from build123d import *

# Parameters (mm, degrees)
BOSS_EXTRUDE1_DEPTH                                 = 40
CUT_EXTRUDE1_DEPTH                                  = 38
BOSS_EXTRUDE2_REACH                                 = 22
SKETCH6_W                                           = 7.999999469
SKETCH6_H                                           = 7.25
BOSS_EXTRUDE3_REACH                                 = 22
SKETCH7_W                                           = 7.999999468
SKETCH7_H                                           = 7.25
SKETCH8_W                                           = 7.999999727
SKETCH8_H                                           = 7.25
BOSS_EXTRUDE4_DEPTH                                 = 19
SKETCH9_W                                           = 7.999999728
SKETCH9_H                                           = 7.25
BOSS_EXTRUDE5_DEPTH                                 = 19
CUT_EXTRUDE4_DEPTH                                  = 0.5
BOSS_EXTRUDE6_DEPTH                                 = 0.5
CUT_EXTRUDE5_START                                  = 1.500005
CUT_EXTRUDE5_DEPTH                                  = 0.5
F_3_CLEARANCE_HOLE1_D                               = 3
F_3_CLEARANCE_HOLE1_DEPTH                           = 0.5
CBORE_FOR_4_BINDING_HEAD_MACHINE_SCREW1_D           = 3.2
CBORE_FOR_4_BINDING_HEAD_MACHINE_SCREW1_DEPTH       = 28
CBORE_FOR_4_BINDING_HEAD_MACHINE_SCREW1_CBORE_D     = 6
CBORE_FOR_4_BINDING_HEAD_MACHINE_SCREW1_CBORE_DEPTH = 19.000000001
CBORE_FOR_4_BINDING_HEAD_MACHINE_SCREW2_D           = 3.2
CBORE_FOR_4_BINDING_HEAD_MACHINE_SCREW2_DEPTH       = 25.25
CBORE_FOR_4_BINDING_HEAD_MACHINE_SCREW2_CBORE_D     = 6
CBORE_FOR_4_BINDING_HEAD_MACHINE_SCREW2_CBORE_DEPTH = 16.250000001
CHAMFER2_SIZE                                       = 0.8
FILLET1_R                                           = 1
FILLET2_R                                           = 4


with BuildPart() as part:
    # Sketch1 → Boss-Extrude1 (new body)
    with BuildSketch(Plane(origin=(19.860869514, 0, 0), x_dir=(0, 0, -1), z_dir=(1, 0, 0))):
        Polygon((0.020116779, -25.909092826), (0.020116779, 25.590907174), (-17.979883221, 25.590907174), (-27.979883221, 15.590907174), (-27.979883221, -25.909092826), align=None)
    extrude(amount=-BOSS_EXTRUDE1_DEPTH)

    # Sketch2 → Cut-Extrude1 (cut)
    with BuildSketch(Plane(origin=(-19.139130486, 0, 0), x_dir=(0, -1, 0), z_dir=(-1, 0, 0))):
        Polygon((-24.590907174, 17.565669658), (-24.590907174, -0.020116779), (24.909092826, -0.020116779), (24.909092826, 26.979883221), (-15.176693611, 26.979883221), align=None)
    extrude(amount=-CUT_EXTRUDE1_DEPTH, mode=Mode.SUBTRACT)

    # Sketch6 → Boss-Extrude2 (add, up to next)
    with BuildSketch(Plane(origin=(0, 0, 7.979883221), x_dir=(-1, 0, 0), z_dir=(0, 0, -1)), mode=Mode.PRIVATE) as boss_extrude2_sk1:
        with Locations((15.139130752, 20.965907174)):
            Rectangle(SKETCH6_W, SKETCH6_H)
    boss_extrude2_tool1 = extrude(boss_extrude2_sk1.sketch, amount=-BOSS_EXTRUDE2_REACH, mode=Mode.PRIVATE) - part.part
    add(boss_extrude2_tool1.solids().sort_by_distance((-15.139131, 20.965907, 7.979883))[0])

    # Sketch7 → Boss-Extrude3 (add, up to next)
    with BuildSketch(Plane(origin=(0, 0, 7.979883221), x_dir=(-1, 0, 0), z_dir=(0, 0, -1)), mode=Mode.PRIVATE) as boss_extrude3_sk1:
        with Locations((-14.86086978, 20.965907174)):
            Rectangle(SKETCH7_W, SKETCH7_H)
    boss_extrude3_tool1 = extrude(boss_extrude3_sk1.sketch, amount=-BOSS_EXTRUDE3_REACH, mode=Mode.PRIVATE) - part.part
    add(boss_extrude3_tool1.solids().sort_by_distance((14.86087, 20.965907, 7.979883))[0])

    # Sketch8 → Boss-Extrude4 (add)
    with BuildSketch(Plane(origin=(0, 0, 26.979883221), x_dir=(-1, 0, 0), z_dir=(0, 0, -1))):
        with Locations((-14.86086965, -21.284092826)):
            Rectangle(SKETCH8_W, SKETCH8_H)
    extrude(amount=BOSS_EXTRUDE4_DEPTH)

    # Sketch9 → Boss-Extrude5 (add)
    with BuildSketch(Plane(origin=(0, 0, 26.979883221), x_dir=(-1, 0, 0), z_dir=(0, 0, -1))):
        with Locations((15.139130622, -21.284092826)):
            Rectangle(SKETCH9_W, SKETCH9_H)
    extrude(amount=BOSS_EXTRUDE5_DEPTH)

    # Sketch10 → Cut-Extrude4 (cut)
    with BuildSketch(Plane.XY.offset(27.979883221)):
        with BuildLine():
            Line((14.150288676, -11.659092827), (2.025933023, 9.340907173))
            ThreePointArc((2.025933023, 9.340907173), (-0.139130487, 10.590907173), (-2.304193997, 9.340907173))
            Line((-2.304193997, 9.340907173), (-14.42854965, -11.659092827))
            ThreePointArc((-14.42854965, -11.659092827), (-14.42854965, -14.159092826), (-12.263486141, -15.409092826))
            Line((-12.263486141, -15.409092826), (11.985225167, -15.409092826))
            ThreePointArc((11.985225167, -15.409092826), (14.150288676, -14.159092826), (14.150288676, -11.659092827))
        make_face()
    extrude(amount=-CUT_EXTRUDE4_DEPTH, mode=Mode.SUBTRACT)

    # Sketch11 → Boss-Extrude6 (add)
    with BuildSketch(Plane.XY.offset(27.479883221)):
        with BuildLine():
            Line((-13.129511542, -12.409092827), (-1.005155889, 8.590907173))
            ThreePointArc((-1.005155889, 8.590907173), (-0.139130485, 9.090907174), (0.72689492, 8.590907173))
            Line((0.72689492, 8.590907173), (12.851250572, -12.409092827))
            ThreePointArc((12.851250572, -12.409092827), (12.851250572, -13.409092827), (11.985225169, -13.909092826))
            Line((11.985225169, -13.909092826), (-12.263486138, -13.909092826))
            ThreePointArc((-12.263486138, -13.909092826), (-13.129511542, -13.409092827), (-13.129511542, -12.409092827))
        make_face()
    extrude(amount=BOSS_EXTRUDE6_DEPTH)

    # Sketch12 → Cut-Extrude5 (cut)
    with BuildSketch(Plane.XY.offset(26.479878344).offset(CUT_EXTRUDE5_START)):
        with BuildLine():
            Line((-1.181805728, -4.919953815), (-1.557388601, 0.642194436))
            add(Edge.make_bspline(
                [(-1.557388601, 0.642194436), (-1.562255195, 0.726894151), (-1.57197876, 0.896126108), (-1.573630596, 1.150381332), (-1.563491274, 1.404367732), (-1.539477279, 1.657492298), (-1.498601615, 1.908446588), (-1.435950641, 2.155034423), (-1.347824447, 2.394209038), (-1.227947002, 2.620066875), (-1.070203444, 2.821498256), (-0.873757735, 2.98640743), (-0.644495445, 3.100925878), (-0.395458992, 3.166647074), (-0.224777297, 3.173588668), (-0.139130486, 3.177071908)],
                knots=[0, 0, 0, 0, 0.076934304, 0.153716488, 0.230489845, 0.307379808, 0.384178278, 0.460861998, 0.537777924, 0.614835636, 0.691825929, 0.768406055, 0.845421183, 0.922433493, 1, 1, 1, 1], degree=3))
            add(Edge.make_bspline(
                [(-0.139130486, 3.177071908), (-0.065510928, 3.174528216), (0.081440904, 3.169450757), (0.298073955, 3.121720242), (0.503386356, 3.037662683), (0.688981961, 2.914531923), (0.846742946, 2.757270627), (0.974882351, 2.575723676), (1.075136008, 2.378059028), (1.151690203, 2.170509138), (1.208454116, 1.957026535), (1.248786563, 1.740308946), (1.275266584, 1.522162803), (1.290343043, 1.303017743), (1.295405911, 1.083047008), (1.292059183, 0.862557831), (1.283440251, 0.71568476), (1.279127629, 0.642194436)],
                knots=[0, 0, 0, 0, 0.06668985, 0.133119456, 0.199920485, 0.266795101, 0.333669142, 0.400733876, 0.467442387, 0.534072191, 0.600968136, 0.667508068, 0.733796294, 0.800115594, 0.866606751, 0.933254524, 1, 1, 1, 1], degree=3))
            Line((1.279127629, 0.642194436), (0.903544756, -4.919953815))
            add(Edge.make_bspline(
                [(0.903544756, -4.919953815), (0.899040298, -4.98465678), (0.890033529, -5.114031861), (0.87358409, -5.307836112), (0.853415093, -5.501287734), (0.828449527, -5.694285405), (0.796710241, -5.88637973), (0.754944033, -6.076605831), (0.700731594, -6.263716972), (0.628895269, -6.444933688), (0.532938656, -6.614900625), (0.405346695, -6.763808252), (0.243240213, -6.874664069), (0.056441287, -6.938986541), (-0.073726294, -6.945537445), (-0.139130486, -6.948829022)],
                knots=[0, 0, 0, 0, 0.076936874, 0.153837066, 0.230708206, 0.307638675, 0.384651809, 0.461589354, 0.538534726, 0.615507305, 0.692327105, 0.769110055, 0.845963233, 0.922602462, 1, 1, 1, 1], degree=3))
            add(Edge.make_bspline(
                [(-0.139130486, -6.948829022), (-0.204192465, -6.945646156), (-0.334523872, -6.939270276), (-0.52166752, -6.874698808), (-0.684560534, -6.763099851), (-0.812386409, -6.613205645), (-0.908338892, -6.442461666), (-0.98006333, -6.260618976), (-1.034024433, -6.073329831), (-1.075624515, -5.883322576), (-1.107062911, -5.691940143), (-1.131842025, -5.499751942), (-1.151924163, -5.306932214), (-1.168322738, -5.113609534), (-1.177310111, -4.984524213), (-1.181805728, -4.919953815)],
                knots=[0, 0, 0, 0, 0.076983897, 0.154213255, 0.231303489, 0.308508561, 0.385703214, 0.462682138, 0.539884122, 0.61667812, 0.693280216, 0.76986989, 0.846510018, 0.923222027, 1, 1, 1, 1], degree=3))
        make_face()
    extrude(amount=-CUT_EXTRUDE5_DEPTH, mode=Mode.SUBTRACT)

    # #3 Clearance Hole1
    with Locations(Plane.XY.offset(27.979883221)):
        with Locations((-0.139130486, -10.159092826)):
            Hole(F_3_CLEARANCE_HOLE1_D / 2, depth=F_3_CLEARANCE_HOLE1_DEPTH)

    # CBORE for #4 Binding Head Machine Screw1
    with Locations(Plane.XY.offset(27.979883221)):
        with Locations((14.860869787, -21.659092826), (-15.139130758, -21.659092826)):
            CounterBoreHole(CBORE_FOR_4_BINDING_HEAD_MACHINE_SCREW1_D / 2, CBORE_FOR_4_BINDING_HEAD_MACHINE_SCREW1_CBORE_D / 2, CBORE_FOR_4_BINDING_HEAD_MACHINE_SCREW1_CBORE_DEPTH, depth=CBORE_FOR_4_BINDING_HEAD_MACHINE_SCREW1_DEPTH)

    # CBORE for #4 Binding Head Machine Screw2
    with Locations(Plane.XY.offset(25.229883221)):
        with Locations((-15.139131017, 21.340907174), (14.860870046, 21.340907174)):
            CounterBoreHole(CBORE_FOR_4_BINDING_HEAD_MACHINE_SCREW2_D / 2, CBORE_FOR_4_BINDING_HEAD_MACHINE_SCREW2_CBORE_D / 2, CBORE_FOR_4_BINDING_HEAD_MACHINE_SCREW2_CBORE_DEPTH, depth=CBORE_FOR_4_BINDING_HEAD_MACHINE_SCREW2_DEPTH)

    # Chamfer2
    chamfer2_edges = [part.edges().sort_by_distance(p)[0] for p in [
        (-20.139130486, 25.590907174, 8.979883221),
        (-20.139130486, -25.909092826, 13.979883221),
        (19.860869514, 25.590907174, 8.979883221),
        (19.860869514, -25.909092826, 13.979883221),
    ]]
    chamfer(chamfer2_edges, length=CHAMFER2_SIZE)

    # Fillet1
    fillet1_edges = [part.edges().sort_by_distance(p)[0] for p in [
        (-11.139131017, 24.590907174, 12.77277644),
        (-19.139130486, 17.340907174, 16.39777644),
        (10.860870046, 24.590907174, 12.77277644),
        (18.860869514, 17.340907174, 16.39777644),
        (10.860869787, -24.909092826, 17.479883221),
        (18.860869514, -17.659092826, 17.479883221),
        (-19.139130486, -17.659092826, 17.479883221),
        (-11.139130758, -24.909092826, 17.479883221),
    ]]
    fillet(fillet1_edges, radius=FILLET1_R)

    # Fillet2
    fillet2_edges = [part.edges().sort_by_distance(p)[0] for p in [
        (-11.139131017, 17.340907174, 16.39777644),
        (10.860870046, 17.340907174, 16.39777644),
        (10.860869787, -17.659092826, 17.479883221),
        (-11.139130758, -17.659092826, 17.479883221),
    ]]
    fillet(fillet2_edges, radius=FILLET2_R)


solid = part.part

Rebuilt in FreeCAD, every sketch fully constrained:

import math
import FreeCAD as App
import Part
import Sketcher
from FreeCAD import Vector
Q = App.Units.Quantity


def edges_at(feature, points):
    """Names of the edges that pass closest to the given points."""
    edges = feature.Shape.Edges
    near = lambda p: min(range(len(edges)), key=lambda i: edges[i].distToShape(Part.Vertex(*p))[0])
    return sorted({f"Edge{near(p) + 1}" for p in points})

doc = App.newDocument("Part")
params = doc.addObject("Spreadsheet::Sheet", "Params")
for row, (alias, value) in enumerate([
    ("sketch1_height", "18 mm"),
    ("sketch1_height2", "28 mm"),
    ("sketch1_width", "51.5 mm"),
    ("pad1_length", "40 mm"),
    ("sketch2_height", "27 mm"),
    ("sketch2_width", "49.5 mm"),
    ("pocket1_length", "38 mm"),
    ("sketch3_width", "7.999999 mm"),
    ("sketch3_height", "7.25 mm"),
    ("sketch4_width", "7.999999 mm"),
    ("sketch4_height", "7.25 mm"),
    ("sketch5_width", "8 mm"),
    ("sketch5_height", "7.25 mm"),
    ("pad4_length", "19 mm"),
    ("sketch6_width", "8 mm"),
    ("sketch6_height", "7.25 mm"),
    ("pad5_length", "19 mm"),
    ("sketch7_radius", "2.5 mm"),
    ("pocket2_length", "0.5 mm"),
    ("sketch8_radius", "1 mm"),
    ("pad6_length", "0.5 mm"),
    ("pocket3_length", "0.5 mm"),
    ("sketch10_diameter", "3 mm"),
    ("hole_diameter", "3 mm"),
    ("hole_depth", "0.5 mm"),
    ("sketch11_diameter", "3.2 mm"),
    ("hole2_diameter", "3.2 mm"),
    ("hole2_depth", "28 mm"),
    ("hole2_cbore_diameter", "6 mm"),
    ("hole2_cbore_depth", "19 mm"),
    ("sketch12_diameter", "3.2 mm"),
    ("hole3_diameter", "3.2 mm"),
    ("hole3_depth", "25.25 mm"),
    ("hole3_cbore_diameter", "6 mm"),
    ("hole3_cbore_depth", "16.25 mm"),
    ("chamfer_size", "0.8 mm"),
    ("fillet_radius", "1 mm"),
    ("fillet2_radius", "4 mm"),
], start=1):
    params.set(f"A{row}", alias)
    params.set(f"B{row}", "=" + value)
    params.setAlias(f"B{row}", alias)

body = doc.addObject("PartDesign::Body", "Body")

# Sketch on YZ plane
sketch1 = doc.addObject("Sketcher::SketchObject", "Sketch")
body.addObject(sketch1)
sketch1.AttachmentSupport = (doc.YZ_Plane, [""])
sketch1.MapMode = "FlatFace"
sketch1.AttachmentOffset = App.Placement(Vector(0, 0, 19.86087), App.Rotation())
sketch1.addGeometry([
    Part.LineSegment(Vector(-26, 0, 0), Vector(26, 0, 0)),  # 0
    Part.LineSegment(Vector(26, 0, 0), Vector(26, 18, 0)),  # 1
    Part.LineSegment(Vector(26, 18, 0), Vector(16, 28, 0)),  # 2
    Part.LineSegment(Vector(16, 28, 0), Vector(-26, 28, 0)),  # 3
    Part.LineSegment(Vector(-26, 28, 0), Vector(-26, 0, 0)),  # 4
], False)
sketch1.addConstraint([
    Sketcher.Constraint("Coincident", 0, 2, 1, 1),
    Sketcher.Constraint("Coincident", 1, 2, 2, 1),
    Sketcher.Constraint("Coincident", 2, 2, 3, 1),
    Sketcher.Constraint("Coincident", 3, 2, 4, 1),
    Sketcher.Constraint("Coincident", 4, 2, 0, 1),
    Sketcher.Constraint("Horizontal", 0),
    Sketcher.Constraint("Vertical", 1),
    Sketcher.Constraint("Horizontal", 3),
    Sketcher.Constraint("Vertical", 4),
    Sketcher.Constraint("DistanceY", 1, 1, 1, 2, 18.0),
    Sketcher.Constraint("DistanceY", 4, 2, 4, 1, 28.0),
    Sketcher.Constraint("Angle", 2, Q("135 deg")),
    Sketcher.Constraint("DistanceX", 0, 1, 0, 2, 51.5),
    Sketcher.Constraint("DistanceX", -1, 1, 0, 2, 25.590907),
    Sketcher.Constraint("DistanceY", 0, 2, -1, 1, 0.020117),
])
sketch1.setExpression("Constraints[9]", "Params.sketch1_height")
sketch1.setExpression("Constraints[10]", "Params.sketch1_height2")
sketch1.setExpression("Constraints[12]", "Params.sketch1_width")
pad1 = doc.addObject("PartDesign::Pad", "Pad")
body.addObject(pad1)
pad1.Profile = sketch1
pad1.setExpression("Length", "Params.pad1_length")
pad1.Reversed = True

# Sketch on YZ plane
sketch2 = doc.addObject("Sketcher::SketchObject", "Sketch001")
body.addObject(sketch2)
sketch2.AttachmentSupport = (doc.YZ_Plane, [""])
sketch2.MapMode = "FlatFace"
sketch2.AttachmentOffset = App.Placement(Vector(0, 0, -19.13913), App.Rotation())
sketch2.addGeometry([
    Part.LineSegment(Vector(25, 18, 0), Vector(25, 0, 0)),  # 0
    Part.LineSegment(Vector(25, 0, 0), Vector(-25, 0, 0)),  # 1
    Part.LineSegment(Vector(-25, 0, 0), Vector(-25, 27, 0)),  # 2
    Part.LineSegment(Vector(-25, 27, 0), Vector(15, 27, 0)),  # 3
    Part.LineSegment(Vector(15, 27, 0), Vector(25, 18, 0)),  # 4
], False)
sketch2.addConstraint([
    Sketcher.Constraint("Coincident", 0, 2, 1, 1),
    Sketcher.Constraint("Coincident", 1, 2, 2, 1),
    Sketcher.Constraint("Coincident", 2, 2, 3, 1),
    Sketcher.Constraint("Coincident", 3, 2, 4, 1),
    Sketcher.Constraint("Coincident", 4, 2, 0, 1),
    Sketcher.Constraint("Vertical", 0),
    Sketcher.Constraint("Horizontal", 1),
    Sketcher.Constraint("Vertical", 2),
    Sketcher.Constraint("Horizontal", 3),
    Sketcher.Constraint("DistanceY", 2, 1, 2, 2, 27.0),
    Sketcher.Constraint("Angle", 4, Q("-45 deg")),
    Sketcher.Constraint("DistanceX", 1, 2, 1, 1, 49.5),
    Sketcher.Constraint("Distance", 4, 13.313708),
    Sketcher.Constraint("DistanceY", -1, 1, 4, 2, 17.56567),
    Sketcher.Constraint("DistanceX", -1, 1, 0, 2, 24.590907),
])
sketch2.setExpression("Constraints[9]", "Params.sketch2_height")
sketch2.setExpression("Constraints[11]", "Params.sketch2_width")
pocket1 = doc.addObject("PartDesign::Pocket", "Pocket")
body.addObject(pocket1)
pocket1.Profile = sketch2
pocket1.setExpression("Length", "Params.pocket1_length")
pocket1.Reversed = True

# Sketch on XY plane
sketch3 = doc.addObject("Sketcher::SketchObject", "Sketch002")
body.addObject(sketch3)
sketch3.AttachmentSupport = (doc.XY_Plane, [""])
sketch3.MapMode = "FlatFace"
sketch3.AttachmentOffset = App.Placement(Vector(0, 0, 7.979883), App.Rotation())
sketch3.addGeometry([
    Part.LineSegment(Vector(-11, 25, 0), Vector(-11, 17, 0)),
    Part.LineSegment(Vector(-11, 17, 0), Vector(-19, 17, 0)),
    Part.LineSegment(Vector(-19, 17, 0), Vector(-19, 25, 0)),
    Part.LineSegment(Vector(-19, 25, 0), Vector(-11, 25, 0)),
], False)
sketch3.addConstraint([
    Sketcher.Constraint("Coincident", 0, 2, 1, 1),
    Sketcher.Constraint("Coincident", 1, 2, 2, 1),
    Sketcher.Constraint("Coincident", 2, 2, 3, 1),
    Sketcher.Constraint("Coincident", 3, 2, 0, 1),
    Sketcher.Constraint("Vertical", 0),
    Sketcher.Constraint("Horizontal", 1),
    Sketcher.Constraint("Vertical", 2),
    Sketcher.Constraint("Horizontal", 3),
    Sketcher.Constraint("DistanceX", 1, 2, 1, 1, 7.999999),
    Sketcher.Constraint("DistanceY", 0, 2, 0, 1, 7.25),
    Sketcher.Constraint("DistanceX", 0, 2, -1, 1, 11.139131),
    Sketcher.Constraint("DistanceY", -1, 1, 0, 2, 17.340907),
])
sketch3.setExpression("Constraints[8]", "Params.sketch3_width")
sketch3.setExpression("Constraints[9]", "Params.sketch3_height")
pad2 = doc.addObject("PartDesign::Pad", "Pad001")
body.addObject(pad2)
pad2.Profile = sketch3
pad2.Type = "UpToFirst"

# Sketch on XY plane
sketch4 = doc.addObject("Sketcher::SketchObject", "Sketch003")
body.addObject(sketch4)
sketch4.AttachmentSupport = (doc.XY_Plane, [""])
sketch4.MapMode = "FlatFace"
sketch4.AttachmentOffset = App.Placement(Vector(0, 0, 7.979883), App.Rotation())
sketch4.addGeometry([
    Part.LineSegment(Vector(19, 25, 0), Vector(19, 17, 0)),
    Part.LineSegment(Vector(19, 17, 0), Vector(11, 17, 0)),
    Part.LineSegment(Vector(11, 17, 0), Vector(11, 25, 0)),
    Part.LineSegment(Vector(11, 25, 0), Vector(19, 25, 0)),
], False)
sketch4.addConstraint([
    Sketcher.Constraint("Coincident", 0, 2, 1, 1),
    Sketcher.Constraint("Coincident", 1, 2, 2, 1),
    Sketcher.Constraint("Coincident", 2, 2, 3, 1),
    Sketcher.Constraint("Coincident", 3, 2, 0, 1),
    Sketcher.Constraint("Vertical", 0),
    Sketcher.Constraint("Horizontal", 1),
    Sketcher.Constraint("Vertical", 2),
    Sketcher.Constraint("Horizontal", 3),
    Sketcher.Constraint("DistanceX", 1, 2, 1, 1, 7.999999),
    Sketcher.Constraint("DistanceY", 0, 2, 0, 1, 7.25),
    Sketcher.Constraint("DistanceX", -1, 1, 0, 2, 18.86087),
    Sketcher.Constraint("DistanceY", -1, 1, 0, 2, 17.340907),
])
sketch4.setExpression("Constraints[8]", "Params.sketch4_width")
sketch4.setExpression("Constraints[9]", "Params.sketch4_height")
pad3 = doc.addObject("PartDesign::Pad", "Pad002")
body.addObject(pad3)
pad3.Profile = sketch4
pad3.Type = "UpToFirst"

# Sketch on XY plane
sketch5 = doc.addObject("Sketcher::SketchObject", "Sketch004")
body.addObject(sketch5)
sketch5.AttachmentSupport = (doc.XY_Plane, [""])
sketch5.MapMode = "FlatFace"
sketch5.AttachmentOffset = App.Placement(Vector(0, 0, 26.979883), App.Rotation())
sketch5.addGeometry([
    Part.LineSegment(Vector(19, -18, 0), Vector(19, -25, 0)),
    Part.LineSegment(Vector(19, -25, 0), Vector(11, -25, 0)),
    Part.LineSegment(Vector(11, -25, 0), Vector(11, -18, 0)),
    Part.LineSegment(Vector(11, -18, 0), Vector(19, -18, 0)),
], False)
sketch5.addConstraint([
    Sketcher.Constraint("Coincident", 0, 2, 1, 1),
    Sketcher.Constraint("Coincident", 1, 2, 2, 1),
    Sketcher.Constraint("Coincident", 2, 2, 3, 1),
    Sketcher.Constraint("Coincident", 3, 2, 0, 1),
    Sketcher.Constraint("Vertical", 0),
    Sketcher.Constraint("Horizontal", 1),
    Sketcher.Constraint("Vertical", 2),
    Sketcher.Constraint("Horizontal", 3),
    Sketcher.Constraint("DistanceX", 1, 2, 1, 1, 8.0),
    Sketcher.Constraint("DistanceY", 0, 2, 0, 1, 7.25),
    Sketcher.Constraint("DistanceX", -1, 1, 0, 2, 18.86087),
    Sketcher.Constraint("DistanceY", 0, 2, -1, 1, 24.909093),
])
sketch5.setExpression("Constraints[8]", "Params.sketch5_width")
sketch5.setExpression("Constraints[9]", "Params.sketch5_height")
pad4 = doc.addObject("PartDesign::Pad", "Pad003")
body.addObject(pad4)
pad4.Profile = sketch5
pad4.setExpression("Length", "Params.pad4_length")
pad4.Reversed = True

# Sketch on XY plane
sketch6 = doc.addObject("Sketcher::SketchObject", "Sketch005")
body.addObject(sketch6)
sketch6.AttachmentSupport = (doc.XY_Plane, [""])
sketch6.MapMode = "FlatFace"
sketch6.AttachmentOffset = App.Placement(Vector(0, 0, 26.979883), App.Rotation())
sketch6.addGeometry([
    Part.LineSegment(Vector(-11, -18, 0), Vector(-11, -25, 0)),
    Part.LineSegment(Vector(-11, -25, 0), Vector(-19, -25, 0)),
    Part.LineSegment(Vector(-19, -25, 0), Vector(-19, -18, 0)),
    Part.LineSegment(Vector(-19, -18, 0), Vector(-11, -18, 0)),
], False)
sketch6.addConstraint([
    Sketcher.Constraint("Coincident", 0, 2, 1, 1),
    Sketcher.Constraint("Coincident", 1, 2, 2, 1),
    Sketcher.Constraint("Coincident", 2, 2, 3, 1),
    Sketcher.Constraint("Coincident", 3, 2, 0, 1),
    Sketcher.Constraint("Vertical", 0),
    Sketcher.Constraint("Horizontal", 1),
    Sketcher.Constraint("Vertical", 2),
    Sketcher.Constraint("Horizontal", 3),
    Sketcher.Constraint("DistanceX", 1, 2, 1, 1, 8.0),
    Sketcher.Constraint("DistanceY", 0, 2, 0, 1, 7.25),
    Sketcher.Constraint("DistanceX", 0, 2, -1, 1, 11.139131),
    Sketcher.Constraint("DistanceY", 0, 2, -1, 1, 24.909093),
])
sketch6.setExpression("Constraints[8]", "Params.sketch6_width")
sketch6.setExpression("Constraints[9]", "Params.sketch6_height")
pad5 = doc.addObject("PartDesign::Pad", "Pad004")
body.addObject(pad5)
pad5.Profile = sketch6
pad5.setExpression("Length", "Params.pad5_length")
pad5.Reversed = True

# Sketch on XY plane
sketch7 = doc.addObject("Sketcher::SketchObject", "Sketch006")
body.addObject(sketch7)
sketch7.AttachmentSupport = (doc.XY_Plane, [""])
sketch7.MapMode = "FlatFace"
sketch7.AttachmentOffset = App.Placement(Vector(0, 0, 27.979883), App.Rotation())
sketch7.addGeometry([
    Part.LineSegment(Vector(14.2, -11.7, 0), Vector(2, 9.3, 0)),  # 0
    Part.ArcOfCircle(Part.Circle(Vector(-0.1, 8.1, 0), Vector(0, 0, 1), 2.5), math.radians(30), math.radians(150)),  # 1
    Part.LineSegment(Vector(-2.3, 9.3, 0), Vector(-14.4, -11.7, 0)),  # 2
    Part.ArcOfCircle(Part.Circle(Vector(-12.3, -12.9, 0), Vector(0, 0, 1), 2.5), math.radians(150), math.radians(270)),  # 3
    Part.LineSegment(Vector(-12.3, -15.4, 0), Vector(12, -15.4, 0)),  # 4
    Part.ArcOfCircle(Part.Circle(Vector(12, -12.9, 0), Vector(0, 0, 1), 2.5), math.radians(-90), math.radians(30)),  # 5
], False)
sketch7.addConstraint([
    Sketcher.Constraint("Tangent", 0, 2, 1, 1),
    Sketcher.Constraint("Tangent", 1, 2, 2, 1),
    Sketcher.Constraint("Tangent", 2, 2, 3, 1),
    Sketcher.Constraint("Tangent", 3, 2, 4, 1),
    Sketcher.Constraint("Tangent", 4, 2, 5, 1),
    Sketcher.Constraint("Tangent", 5, 2, 0, 1),
    Sketcher.Constraint("Horizontal", 4),
    Sketcher.Constraint("Equal", 1, 3),
    Sketcher.Constraint("Equal", 3, 5),
    Sketcher.Constraint("Horizontal", 0, 2, 1, 2),
    Sketcher.Constraint("Radius", 1, 2.5),
    Sketcher.Constraint("Angle", 0, Q("120 deg")),
    Sketcher.Constraint("DistanceY", 3, 3, 1, 3, 21.0),
    Sketcher.Constraint("DistanceX", 1, 3, -1, 1, 0.13913),
    Sketcher.Constraint("DistanceY", -1, 1, 1, 3, 8.090907),
])
sketch7.setExpression("Constraints[10]", "Params.sketch7_radius")
pocket2 = doc.addObject("PartDesign::Pocket", "Pocket001")
body.addObject(pocket2)
pocket2.Profile = sketch7
pocket2.setExpression("Length", "Params.pocket2_length")

# Sketch on XY plane
sketch8 = doc.addObject("Sketcher::SketchObject", "Sketch007")
body.addObject(sketch8)
sketch8.AttachmentSupport = (doc.XY_Plane, [""])
sketch8.MapMode = "FlatFace"
sketch8.AttachmentOffset = App.Placement(Vector(0, 0, 27.479883), App.Rotation())
sketch8.addGeometry([
    Part.LineSegment(Vector(-1, 8.6, 0), Vector(-13.1, -12.4, 0)),  # 0
    Part.ArcOfCircle(Part.Circle(Vector(-12.3, -12.9, 0), Vector(0, 0, 1), 1), math.radians(150), math.radians(270)),  # 1
    Part.LineSegment(Vector(-12.3, -13.9, 0), Vector(12, -13.9, 0)),  # 2
    Part.ArcOfCircle(Part.Circle(Vector(12, -12.9, 0), Vector(0, 0, 1), 1), math.radians(-90), math.radians(30)),  # 3
    Part.LineSegment(Vector(12.9, -12.4, 0), Vector(0.7, 8.6, 0)),  # 4
    Part.ArcOfCircle(Part.Circle(Vector(-0.1, 8.1, 0), Vector(0, 0, 1), 1), math.radians(30), math.radians(150)),  # 5
], False)
sketch8.addConstraint([
    Sketcher.Constraint("Tangent", 0, 2, 1, 1),
    Sketcher.Constraint("Tangent", 1, 2, 2, 1),
    Sketcher.Constraint("Tangent", 2, 2, 3, 1),
    Sketcher.Constraint("Tangent", 3, 2, 4, 1),
    Sketcher.Constraint("Tangent", 4, 2, 5, 1),
    Sketcher.Constraint("Tangent", 5, 2, 0, 1),
    Sketcher.Constraint("Horizontal", 2),
    Sketcher.Constraint("Equal", 1, 3),
    Sketcher.Constraint("Equal", 3, 5),
    Sketcher.Constraint("Horizontal", 0, 2, 3, 2),
    Sketcher.Constraint("Radius", 1, 1.0),
    Sketcher.Constraint("Angle", 0, Q("-120 deg")),
    Sketcher.Constraint("DistanceY", 3, 3, 5, 3, 21.0),
    Sketcher.Constraint("DistanceX", 5, 3, -1, 1, 0.13913),
    Sketcher.Constraint("DistanceY", 1, 3, -1, 1, 12.909093),
])
sketch8.setExpression("Constraints[10]", "Params.sketch8_radius")
pad6 = doc.addObject("PartDesign::Pad", "Pad005")
body.addObject(pad6)
pad6.Profile = sketch8
pad6.setExpression("Length", "Params.pad6_length")

# Sketch on XY plane
sketch9 = doc.addObject("Sketcher::SketchObject", "Sketch008")
body.addObject(sketch9)
sketch9.AttachmentSupport = (doc.XY_Plane, [""])
sketch9.MapMode = "FlatFace"
sketch9.AttachmentOffset = App.Placement(Vector(0, 0, 27.979883), App.Rotation())
sketch9.addGeometry([
    Part.LineSegment(Vector(-1.557389, 0.642194, 0), Vector(-1.181806, -4.919954, 0)),  # 0
    Part.BSplineCurve([Vector(-0.13913, -6.948829, 0), Vector(-0.204192, -6.945646, 0), Vector(-0.334524, -6.93927, 0), Vector(-0.521668, -6.874699, 0), Vector(-0.684561, -6.7631, 0), Vector(-0.812386, -6.613206, 0), Vector(-0.908339, -6.442462, 0), Vector(-0.980063, -6.260619, 0), Vector(-1.034024, -6.07333, 0), Vector(-1.075625, -5.883323, 0), Vector(-1.107063, -5.69194, 0), Vector(-1.131842, -5.499752, 0), Vector(-1.151924, -5.306932, 0), Vector(-1.168323, -5.11361, 0), Vector(-1.17731, -4.984524, 0), Vector(-1.181806, -4.919954, 0)], [4, 1, 1, 1, 1, 1, 1, 1, 1, 1, 1, 1, 1, 4], [0, 0.076983897, 0.154213255, 0.231303489, 0.308508561, 0.385703214, 0.462682138, 0.539884122, 0.61667812, 0.693280216, 0.76986989, 0.846510018, 0.923222027, 1], False, 3, [1, 1, 1, 1, 1, 1, 1, 1, 1, 1, 1, 1, 1, 1, 1, 1], False),  # 1
    Part.BSplineCurve([Vector(0.903545, -4.919954, 0), Vector(0.89904, -4.984657, 0), Vector(0.890034, -5.114032, 0), Vector(0.873584, -5.307836, 0), Vector(0.853415, -5.501288, 0), Vector(0.82845, -5.694285, 0), Vector(0.79671, -5.88638, 0), Vector(0.754944, -6.076606, 0), Vector(0.700732, -6.263717, 0), Vector(0.628895, -6.444934, 0), Vector(0.532939, -6.614901, 0), Vector(0.405347, -6.763808, 0), Vector(0.24324, -6.874664, 0), Vector(0.056441, -6.938987, 0), Vector(-0.073726, -6.945537, 0), Vector(-0.13913, -6.948829, 0)], [4, 1, 1, 1, 1, 1, 1, 1, 1, 1, 1, 1, 1, 4], [0, 0.076936874, 0.153837066, 0.230708206, 0.307638675, 0.384651809, 0.461589354, 0.538534726, 0.615507305, 0.692327105, 0.769110055, 0.845963233, 0.922602462, 1], False, 3, [1, 1, 1, 1, 1, 1, 1, 1, 1, 1, 1, 1, 1, 1, 1, 1], False),  # 2
    Part.LineSegment(Vector(0.903545, -4.919954, 0), Vector(1.279128, 0.642194, 0)),  # 3
    Part.BSplineCurve([Vector(-0.13913, 3.177072, 0), Vector(-0.065511, 3.174528, 0), Vector(0.081441, 3.169451, 0), Vector(0.298074, 3.12172, 0), Vector(0.503386, 3.037663, 0), Vector(0.688982, 2.914532, 0), Vector(0.846743, 2.757271, 0), Vector(0.974882, 2.575724, 0), Vector(1.075136, 2.378059, 0), Vector(1.15169, 2.170509, 0), Vector(1.208454, 1.957027, 0), Vector(1.248787, 1.740309, 0), Vector(1.275267, 1.522163, 0), Vector(1.290343, 1.303018, 0), Vector(1.295406, 1.083047, 0), Vector(1.292059, 0.862558, 0), Vector(1.28344, 0.715685, 0), Vector(1.279128, 0.642194, 0)], [4, 1, 1, 1, 1, 1, 1, 1, 1, 1, 1, 1, 1, 1, 1, 4], [0, 0.06668985, 0.133119456, 0.199920485, 0.266795101, 0.333669142, 0.400733876, 0.467442387, 0.534072191, 0.600968136, 0.667508068, 0.733796294, 0.800115594, 0.866606751, 0.933254524, 1], False, 3, [1, 1, 1, 1, 1, 1, 1, 1, 1, 1, 1, 1, 1, 1, 1, 1, 1, 1], False),  # 4
    Part.BSplineCurve([Vector(-1.557389, 0.642194, 0), Vector(-1.562255, 0.726894, 0), Vector(-1.571979, 0.896126, 0), Vector(-1.573631, 1.150381, 0), Vector(-1.563491, 1.404368, 0), Vector(-1.539477, 1.657492, 0), Vector(-1.498602, 1.908447, 0), Vector(-1.435951, 2.155034, 0), Vector(-1.347824, 2.394209, 0), Vector(-1.227947, 2.620067, 0), Vector(-1.070203, 2.821498, 0), Vector(-0.873758, 2.986407, 0), Vector(-0.644495, 3.100926, 0), Vector(-0.395459, 3.166647, 0), Vector(-0.224777, 3.173589, 0), Vector(-0.13913, 3.177072, 0)], [4, 1, 1, 1, 1, 1, 1, 1, 1, 1, 1, 1, 1, 4], [0, 0.076934304, 0.153716488, 0.230489845, 0.307379808, 0.384178278, 0.460861998, 0.537777924, 0.614835636, 0.691825929, 0.768406055, 0.845421183, 0.922433493, 1], False, 3, [1, 1, 1, 1, 1, 1, 1, 1, 1, 1, 1, 1, 1, 1, 1, 1], False),  # 5
], False)
sketch9.addConstraint([
    Sketcher.Constraint("Block", 1),
    Sketcher.Constraint("Block", 2),
    Sketcher.Constraint("Block", 4),
    Sketcher.Constraint("Block", 5),
    Sketcher.Constraint("Coincident", 0, 2, 1, 2),
    Sketcher.Constraint("Coincident", 2, 1, 3, 1),
    Sketcher.Constraint("Coincident", 3, 2, 4, 2),
    Sketcher.Constraint("Coincident", 5, 1, 0, 1),
])
pocket3 = doc.addObject("PartDesign::Pocket", "Pocket002")
body.addObject(pocket3)
pocket3.Profile = sketch9
pocket3.setExpression("Length", "Params.pocket3_length")

# Sketch on XY plane
sketch10 = doc.addObject("Sketcher::SketchObject", "Sketch009")
body.addObject(sketch10)
sketch10.AttachmentSupport = (doc.XY_Plane, [""])
sketch10.MapMode = "FlatFace"
sketch10.AttachmentOffset = App.Placement(Vector(0, 0, 27.979883), App.Rotation())
sketch10.addGeometry(Part.Circle(Vector(-0.1, -10.2, 0), Vector(0, 0, 1), 1.5), False)
sketch10.addConstraint([
    Sketcher.Constraint("Diameter", 0, 3.0),
    Sketcher.Constraint("DistanceX", 0, 3, -1, 1, 0.13913),
    Sketcher.Constraint("DistanceY", 0, 3, -1, 1, 10.159093),
])
sketch10.setExpression("Constraints[0]", "Params.sketch10_diameter")
doc.recompute()
hole = doc.addObject("PartDesign::Hole", "Hole")
body.addObject(hole)
hole.Profile = sketch10
hole.ThreadType = "None"
hole.setExpression("Diameter", "Params.hole_diameter")
hole.DepthType = "Dimension"
hole.setExpression("Depth", "Params.hole_depth")
hole.DrillPoint = "Flat"

# Sketch on XY plane
sketch11 = doc.addObject("Sketcher::SketchObject", "Sketch010")
body.addObject(sketch11)
sketch11.AttachmentSupport = (doc.XY_Plane, [""])
sketch11.MapMode = "FlatFace"
sketch11.AttachmentOffset = App.Placement(Vector(0, 0, 27.979883), App.Rotation())
sketch11.addGeometry([
    Part.Circle(Vector(14.9, -21.7, 0), Vector(0, 0, 1), 1.6),
    Part.Circle(Vector(-15.1, -21.7, 0), Vector(0, 0, 1), 1.6),
], False)
sketch11.addConstraint([
    Sketcher.Constraint("Equal", 0, 1),
    Sketcher.Constraint("Horizontal", 0, 3, 1, 3),
    Sketcher.Constraint("Diameter", 0, 3.2),
    Sketcher.Constraint("DistanceX", 1, 3, 0, 3, 30.000001),
    Sketcher.Constraint("DistanceX", -1, 1, 0, 3, 14.86087),
    Sketcher.Constraint("DistanceY", 0, 3, -1, 1, 21.659093),
])
sketch11.setExpression("Constraints[2]", "Params.sketch11_diameter")
doc.recompute()
hole2 = doc.addObject("PartDesign::Hole", "Hole001")
body.addObject(hole2)
hole2.Profile = sketch11
hole2.ThreadType = "None"
hole2.setExpression("Diameter", "Params.hole2_diameter")
hole2.DepthType = "Dimension"
hole2.setExpression("Depth", "Params.hole2_depth")
hole2.DrillPoint = "Flat"
hole2.HoleCutType = "Counterbore"
hole2.setExpression("HoleCutDiameter", "Params.hole2_cbore_diameter")
hole2.setExpression("HoleCutDepth", "Params.hole2_cbore_depth")

# Sketch on XY plane
sketch12 = doc.addObject("Sketcher::SketchObject", "Sketch011")
body.addObject(sketch12)
sketch12.AttachmentSupport = (doc.XY_Plane, [""])
sketch12.MapMode = "FlatFace"
sketch12.AttachmentOffset = App.Placement(Vector(0, 0, 25.229883), App.Rotation())
sketch12.addGeometry([
    Part.Circle(Vector(-15.1, 21.3, 0), Vector(0, 0, 1), 1.6),
    Part.Circle(Vector(14.9, 21.3, 0), Vector(0, 0, 1), 1.6),
], False)
sketch12.addConstraint([
    Sketcher.Constraint("Equal", 0, 1),
    Sketcher.Constraint("Horizontal", 0, 3, 1, 3),
    Sketcher.Constraint("Diameter", 0, 3.2),
    Sketcher.Constraint("DistanceX", 0, 3, 1, 3, 30.000001),
    Sketcher.Constraint("DistanceX", 0, 3, -1, 1, 15.139131),
    Sketcher.Constraint("DistanceY", -1, 1, 0, 3, 21.340907),
])
sketch12.setExpression("Constraints[2]", "Params.sketch12_diameter")
doc.recompute()
hole3 = doc.addObject("PartDesign::Hole", "Hole002")
body.addObject(hole3)
hole3.Profile = sketch12
hole3.ThreadType = "None"
hole3.setExpression("Diameter", "Params.hole3_diameter")
hole3.DepthType = "Dimension"
hole3.setExpression("Depth", "Params.hole3_depth")
hole3.DrillPoint = "Flat"
hole3.HoleCutType = "Counterbore"
hole3.setExpression("HoleCutDiameter", "Params.hole3_cbore_diameter")
hole3.setExpression("HoleCutDepth", "Params.hole3_cbore_depth")
doc.recompute()

chamfer = doc.addObject("PartDesign::Chamfer", "Chamfer")
body.addObject(chamfer)
chamfer.Base = (hole3, edges_at(hole3, [
    (-20.139, 25.591, 8.98),
    (-20.139, -25.909, 13.98),
    (19.861, 25.591, 8.98),
    (19.861, -25.909, 13.98),
]))
chamfer.setExpression("Size", "Params.chamfer_size")
doc.recompute()

fillet = doc.addObject("PartDesign::Fillet", "Fillet")
body.addObject(fillet)
fillet.Base = (chamfer, edges_at(chamfer, [
    (-11.139, 24.591, 12.773),
    (-19.139, 17.341, 16.398),
    (10.861, 24.591, 12.773),
    (18.861, 17.341, 16.398),
    (10.861, -24.909, 17.48),
    (18.861, -17.659, 17.48),
    (-19.139, -17.659, 17.48),
    (-11.139, -24.909, 17.48),
]))
fillet.setExpression("Radius", "Params.fillet_radius")
doc.recompute()

fillet2 = doc.addObject("PartDesign::Fillet", "Fillet001")
body.addObject(fillet2)
fillet2.Base = (fillet, edges_at(fillet, [
    (-11.139, 17.341, 16.398),
    (10.861, 17.341, 16.398),
    (10.861, -17.659, 17.48),
    (-11.139, -17.659, 17.48),
]))
fillet2.setExpression("Radius", "Params.fillet2_radius")

doc.recompute()
